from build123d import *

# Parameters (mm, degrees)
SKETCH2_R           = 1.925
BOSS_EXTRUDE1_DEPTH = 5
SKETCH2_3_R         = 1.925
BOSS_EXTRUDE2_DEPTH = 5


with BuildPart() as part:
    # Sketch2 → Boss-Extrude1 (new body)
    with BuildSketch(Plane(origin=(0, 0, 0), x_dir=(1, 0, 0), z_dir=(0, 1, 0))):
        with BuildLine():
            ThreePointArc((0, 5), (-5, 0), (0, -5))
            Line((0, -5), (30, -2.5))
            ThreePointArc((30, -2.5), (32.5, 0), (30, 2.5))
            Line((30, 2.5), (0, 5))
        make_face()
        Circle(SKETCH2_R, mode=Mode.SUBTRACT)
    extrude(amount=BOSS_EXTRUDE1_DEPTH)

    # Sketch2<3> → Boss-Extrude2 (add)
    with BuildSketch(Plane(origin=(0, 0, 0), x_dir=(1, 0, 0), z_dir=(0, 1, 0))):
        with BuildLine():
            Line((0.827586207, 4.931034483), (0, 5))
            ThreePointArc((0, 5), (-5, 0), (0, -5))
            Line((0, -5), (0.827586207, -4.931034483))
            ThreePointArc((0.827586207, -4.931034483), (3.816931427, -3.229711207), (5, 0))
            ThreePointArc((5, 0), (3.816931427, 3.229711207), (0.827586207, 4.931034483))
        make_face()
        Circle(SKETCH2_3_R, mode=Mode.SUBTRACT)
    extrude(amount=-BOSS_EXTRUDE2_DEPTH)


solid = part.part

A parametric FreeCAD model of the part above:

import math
import FreeCAD as App
import Part
import Sketcher

doc = App.newDocument("Part")
body = doc.addObject("PartDesign::Body", "Body")

# Sketch on XZ plane
sketch1 = body.newObject("Sketcher::SketchObject", "Sketch")
sketch1.AttachmentSupport = (doc.getObject("XZ_Plane"), [""])
sketch1.MapMode = "FlatFace"
sketch1.addGeometry([
    Part.ArcOfCircle(Part.Circle(App.Vector(0, 0, 0), App.Vector(0, 0, 1), 5), math.radians(90), math.radians(270)),  # 0
    Part.LineSegment(App.Vector(0, 5, 0), App.Vector(30, 2.5, 0)),  # 1
    Part.ArcOfCircle(Part.Circle(App.Vector(30, 0, 0), App.Vector(0, 0, 1), 2.5), math.radians(-90), math.radians(90)),  # 2
    Part.LineSegment(App.Vector(30, -2.5, 0), App.Vector(0, -5, 0)),  # 3
    Part.Circle(App.Vector(0, 0, 0), App.Vector(0, 0, 1), 1.9),  # 4
], False)
sketch1.addConstraint([
    Sketcher.Constraint("Coincident", 0, 1, 1, 1),
    Sketcher.Constraint("Coincident", 1, 2, 2, 2),
    Sketcher.Constraint("Coincident", 2, 1, 3, 1),
    Sketcher.Constraint("Coincident", 3, 2, 0, 2),
    Sketcher.Constraint("Coincident", 0, 3, -1, 1),
    Sketcher.Constraint("Coincident", 4, 3, -1, 1),
    Sketcher.Constraint("Symmetric", 1, 2, 2, 1, -1),
    Sketcher.Constraint("PointOnObject", 0, 1, -2),
    Sketcher.Constraint("PointOnObject", 3, 2, -2),
    Sketcher.Constraint("Vertical", 2, 3, 1, 2),
    Sketcher.Constraint("Radius", 0, 5.0),
    Sketcher.Constraint("Radius", 2, 2.5),
    Sketcher.Constraint("Diameter", 4, 3.85),
    Sketcher.Constraint("DistanceX", -1, 1, 2, 3, 30.0),
])
pad1 = body.newObject("PartDesign::Pad", "Pad")
pad1.Profile = sketch1
pad1.Length = 5
pad1.Reversed = True

# Sketch on XZ plane
sketch2 = body.newObject("Sketcher::SketchObject", "Sketch001")
sketch2.AttachmentSupport = (doc.getObject("XZ_Plane"), [""])
sketch2.MapMode = "FlatFace"
sketch2.addGeometry([
    Part.LineSegment(App.Vector(0.8, -4.9, 0), App.Vector(0, -5, 0)),  # 0
    Part.ArcOfCircle(Part.Circle(App.Vector(0, 0, 0), App.Vector(0, 0, 1), 5), math.radians(90), math.radians(270)),  # 1
    Part.LineSegment(App.Vector(0, 5, 0), App.Vector(0.8, 4.9, 0)),  # 2
    Part.ArcOfCircle(Part.Circle(App.Vector(0, 0, 0), App.Vector(0, 0, 1), 5), math.radians(0), math.radians(80)),  # 3
    Part.ArcOfCircle(Part.Circle(App.Vector(0, 0, 0), App.Vector(0, 0, 1), 5), math.radians(-80), math.radians(0)),  # 4
    Part.Circle(App.Vector(0, 0, 0), App.Vector(0, 0, 1), 1.9),  # 5
], False)
sketch2.addConstraint([
    Sketcher.Constraint("Coincident", 0, 2, 1, 2),
    Sketcher.Constraint("Coincident", 1, 1, 2, 1),
    Sketcher.Constraint("Coincident", 2, 2, 3, 2),
    Sketcher.Constraint("Tangent", 3, 1, 4, 2),
    Sketcher.Constraint("Coincident", 4, 1, 0, 1),
    Sketcher.Constraint("Coincident", 1, 3, -1, 1),
    Sketcher.Constraint("Coincident", 3, 3, -1, 1),
    Sketcher.Constraint("Coincident", 5, 3, -1, 1),
    Sketcher.Constraint("Equal", 1, 3),
    Sketcher.Constraint("Equal", 3, 4),
    Sketcher.Constraint("PointOnObject", 0, 2, -2),
    Sketcher.Constraint("PointOnObject", 1, 1, -2),
    Sketcher.Constraint("PointOnObject", 3, 1, -1),
    Sketcher.Constraint("Vertical", 2, 2, 4, 1),
    Sketcher.Constraint("Radius", 1, 5.0),
    Sketcher.Constraint("Diameter", 5, 3.85),
    Sketcher.Constraint("Distance", 0, 0.830455),
])
pad2 = body.newObject("PartDesign::Pad", "Pad001")
pad2.Profile = sketch2
pad2.Length = 5

doc.recompute()
